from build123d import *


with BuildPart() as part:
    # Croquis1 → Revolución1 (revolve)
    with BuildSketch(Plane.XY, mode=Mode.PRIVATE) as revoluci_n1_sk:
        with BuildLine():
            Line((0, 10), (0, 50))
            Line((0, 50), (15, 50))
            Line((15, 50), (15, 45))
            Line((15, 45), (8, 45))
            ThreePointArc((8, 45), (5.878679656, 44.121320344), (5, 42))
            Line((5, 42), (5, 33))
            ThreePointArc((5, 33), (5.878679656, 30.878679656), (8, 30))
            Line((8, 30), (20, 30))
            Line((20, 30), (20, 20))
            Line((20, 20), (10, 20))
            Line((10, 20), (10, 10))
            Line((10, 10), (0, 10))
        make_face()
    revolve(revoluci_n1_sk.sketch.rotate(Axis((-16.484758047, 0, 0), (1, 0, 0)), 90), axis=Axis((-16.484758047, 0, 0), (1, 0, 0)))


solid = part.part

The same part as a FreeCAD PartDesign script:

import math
import FreeCAD as App
import Part
import Sketcher

doc = App.newDocument("Part")
body = doc.addObject("PartDesign::Body", "Body")

# Sketch on XY plane
sketch1 = body.newObject("Sketcher::SketchObject", "Sketch")
sketch1.AttachmentSupport = (doc.getObject("XY_Plane"), [""])
sketch1.MapMode = "FlatFace"
sketch1.addGeometry([
    Part.LineSegment(App.Vector(0, 50, 0), App.Vector(0, 10, 0)),  # 0
    Part.LineSegment(App.Vector(0, 10, 0), App.Vector(10, 10, 0)),  # 1
    Part.LineSegment(App.Vector(10, 10, 0), App.Vector(10, 20, 0)),  # 2
    Part.LineSegment(App.Vector(10, 20, 0), App.Vector(20, 20, 0)),  # 3
    Part.LineSegment(App.Vector(20, 20, 0), App.Vector(20, 30, 0)),  # 4
    Part.LineSegment(App.Vector(20, 30, 0), App.Vector(8, 30, 0)),  # 5
    Part.ArcOfCircle(Part.Circle(App.Vector(8, 33, 0), App.Vector(0, 0, 1), 3), math.radians(180), math.radians(270)),  # 6
    Part.LineSegment(App.Vector(5, 33, 0), App.Vector(5, 42, 0)),  # 7
    Part.ArcOfCircle(Part.Circle(App.Vector(8, 42, 0), App.Vector(0, 0, 1), 3), math.radians(90), math.radians(180)),  # 8
    Part.LineSegment(App.Vector(8, 45, 0), App.Vector(15, 45, 0)),  # 9
    Part.LineSegment(App.Vector(15, 45, 0), App.Vector(15, 50, 0)),  # 10
    Part.LineSegment(App.Vector(15, 50, 0), App.Vector(0, 50, 0)),  # 11
], False)
sketch1.addConstraint([
    Sketcher.Constraint("Coincident", 0, 2, 1, 1),
    Sketcher.Constraint("Coincident", 1, 2, 2, 1),
    Sketcher.Constraint("Coincident", 2, 2, 3, 1),
    Sketcher.Constraint("Coincident", 3, 2, 4, 1),
    Sketcher.Constraint("Coincident", 4, 2, 5, 1),
    Sketcher.Constraint("Tangent", 5, 2, 6, 2),
    Sketcher.Constraint("Tangent", 6, 1, 7, 1),
    Sketcher.Constraint("Tangent", 7, 2, 8, 2),
    Sketcher.Constraint("Tangent", 8, 1, 9, 1),
    Sketcher.Constraint("Coincident", 9, 2, 10, 1),
    Sketcher.Constraint("Coincident", 10, 2, 11, 1),
    Sketcher.Constraint("Coincident", 11, 2, 0, 1),
    Sketcher.Constraint("Vertical", 0),
    Sketcher.Constraint("Horizontal", 1),
    Sketcher.Constraint("Vertical", 2),
    Sketcher.Constraint("Horizontal", 3),
    Sketcher.Constraint("Vertical", 4),
    Sketcher.Constraint("Horizontal", 5),
    Sketcher.Constraint("Vertical", 7),
    Sketcher.Constraint("Horizontal", 9),
    Sketcher.Constraint("Vertical", 10),
    Sketcher.Constraint("Horizontal", 11),
    Sketcher.Constraint("Equal", 6, 8),
    Sketcher.Constraint("PointOnObject", 0, 2, -2),
    Sketcher.Constraint("Equal", 1, 3),
    Sketcher.Constraint("Equal", 3, 2),
    Sketcher.Constraint("Equal", 2, 4),
    Sketcher.Constraint("Radius", 6, 3.0),
    Sketcher.Constraint("DistanceX", 1, 1, 1, 2, 10.0),
    Sketcher.Constraint("DistanceX", 5, 2, 5, 1, 12.0),
    Sketcher.Constraint("DistanceX", 9, 1, 9, 2, 7.0),
    Sketcher.Constraint("DistanceY", 0, 2, 0, 1, 40.0),
    Sketcher.Constraint("DistanceY", 7, 1, 7, 2, 9.0),
    Sketcher.Constraint("DistanceY", -1, 1, 6, 3, 33.0),
])
revolution = body.newObject("PartDesign::Revolution", "Revolution")
revolution.Profile = sketch1
revolution.ReferenceAxis = (sketch1, ["H_Axis"])
revolution.Angle = 360

doc.recompute()
